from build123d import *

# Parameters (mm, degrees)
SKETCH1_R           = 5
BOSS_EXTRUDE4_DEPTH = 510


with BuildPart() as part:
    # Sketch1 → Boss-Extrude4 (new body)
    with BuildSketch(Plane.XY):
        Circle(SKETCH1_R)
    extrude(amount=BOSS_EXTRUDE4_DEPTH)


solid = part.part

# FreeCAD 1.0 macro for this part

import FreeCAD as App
import Part
import Sketcher

V = App.Vector

doc = App.newDocument("Part")
body = doc.addObject("PartDesign::Body", "Body")

# Sketch on XY plane
sketch1 = body.newObject("Sketcher::SketchObject", "Sketch")
sketch1.AttachmentSupport = (doc.getObject("XY_Plane"), [""])
sketch1.MapMode = "FlatFace"
sketch1.addGeometry(Part.Circle(V(0, 0, 0), V(0, 0, 1), 5), False)
sketch1.addConstraint([
    Sketcher.Constraint("Coincident", 0, 3, -1, 1),
    Sketcher.Constraint("Diameter", 0, 10.0),
])
pad1 = body.newObject("PartDesign::Pad", "Pad")
pad1.Profile = sketch1
pad1.Length = 510

doc.recompute()
